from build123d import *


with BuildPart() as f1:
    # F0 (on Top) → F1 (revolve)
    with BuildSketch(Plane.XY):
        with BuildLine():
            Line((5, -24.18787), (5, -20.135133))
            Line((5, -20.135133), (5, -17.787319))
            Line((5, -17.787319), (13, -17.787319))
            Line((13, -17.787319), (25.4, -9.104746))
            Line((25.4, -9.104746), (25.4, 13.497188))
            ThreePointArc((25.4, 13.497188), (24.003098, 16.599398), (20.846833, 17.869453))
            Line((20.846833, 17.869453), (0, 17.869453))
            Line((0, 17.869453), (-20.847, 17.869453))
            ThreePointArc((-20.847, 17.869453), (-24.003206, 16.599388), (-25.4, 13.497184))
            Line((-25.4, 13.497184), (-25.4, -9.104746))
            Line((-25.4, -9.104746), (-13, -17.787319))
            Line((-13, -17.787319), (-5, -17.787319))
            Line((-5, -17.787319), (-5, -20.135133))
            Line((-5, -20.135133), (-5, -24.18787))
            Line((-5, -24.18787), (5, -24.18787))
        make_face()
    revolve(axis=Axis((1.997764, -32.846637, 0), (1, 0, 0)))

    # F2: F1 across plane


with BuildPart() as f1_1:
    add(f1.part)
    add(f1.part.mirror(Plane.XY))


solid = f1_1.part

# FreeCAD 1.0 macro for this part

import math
import FreeCAD as App
import Part
import Sketcher
Q = App.Units.Quantity

doc = App.newDocument("Part")
body = doc.addObject("PartDesign::Body", "Body")

sketch1 = body.newObject("Sketcher::SketchObject", "Sketch")
sketch1.AttachmentSupport = (doc.getObject("XY_Plane"), [""])
sketch1.MapMode = "FlatFace"
sketch1.addGeometry(Part.LineSegment(App.Vector(5, -24.18787, 0), App.Vector(5, -17.787319, 0)), False)
sketch1.addGeometry(Part.LineSegment(App.Vector(5, -17.787319, 0), App.Vector(13, -17.787319, 0)), False)
sketch1.addGeometry(Part.LineSegment(App.Vector(13, -17.787319, 0), App.Vector(25.4, -9.104746, 0)), False)
sketch1.addGeometry(Part.LineSegment(App.Vector(25.4, -9.104746, 0), App.Vector(25.4, 13.497188, 0)), False)
sketch1.addGeometry(Part.ArcOfCircle(Part.Circle(App.Vector(20.846832, 13.312543, 0), App.Vector(0, 0, 1), 4.55691), math.radians(2.32225), math.radians(89.999991)), False)
sketch1.addGeometry(Part.LineSegment(App.Vector(20.846833, 17.869453, 0), App.Vector(-20.847, 17.869453, 0)), False)
sketch1.addGeometry(Part.ArcOfCircle(Part.Circle(App.Vector(-20.847, 13.312718, 0), App.Vector(0, 0, 1), 4.556735), math.radians(89.999995), math.radians(177.679916)), False)
sketch1.addGeometry(Part.LineSegment(App.Vector(-25.4, 13.497184, 0), App.Vector(-25.4, -9.104746, 0)), False)
sketch1.addGeometry(Part.LineSegment(App.Vector(-25.4, -9.104746, 0), App.Vector(-13, -17.787319, 0)), False)
sketch1.addGeometry(Part.LineSegment(App.Vector(-13, -17.787319, 0), App.Vector(-5, -17.787319, 0)), False)
sketch1.addGeometry(Part.LineSegment(App.Vector(-5, -17.787319, 0), App.Vector(-5, -24.18787, 0)), False)
sketch1.addGeometry(Part.LineSegment(App.Vector(-5, -24.18787, 0), App.Vector(5, -24.18787, 0)), False)
sketch1.addGeometry(Part.LineSegment(App.Vector(-25.4, -32.846637, 0), App.Vector(25.4, -32.846637, 0)), True)
sketch1.addConstraint(Sketcher.Constraint("Coincident", 0, 2, 1, 1))
sketch1.addConstraint(Sketcher.Constraint("Coincident", 1, 2, 2, 1))
sketch1.addConstraint(Sketcher.Constraint("Coincident", 2, 2, 3, 1))
sketch1.addConstraint(Sketcher.Constraint("Coincident", 3, 2, 4, 1))
sketch1.addConstraint(Sketcher.Constraint("Tangent", 4, 2, 5, 1))
sketch1.addConstraint(Sketcher.Constraint("Tangent", 5, 2, 6, 1))
sketch1.addConstraint(Sketcher.Constraint("Coincident", 6, 2, 7, 1))
sketch1.addConstraint(Sketcher.Constraint("Coincident", 7, 2, 8, 1))
sketch1.addConstraint(Sketcher.Constraint("Coincident", 8, 2, 9, 1))
sketch1.addConstraint(Sketcher.Constraint("Coincident", 9, 2, 10, 1))
sketch1.addConstraint(Sketcher.Constraint("Coincident", 10, 2, 11, 1))
sketch1.addConstraint(Sketcher.Constraint("Coincident", 11, 2, 0, 1))
sketch1.addConstraint(Sketcher.Constraint("Vertical", 0))
sketch1.addConstraint(Sketcher.Constraint("Horizontal", 1))
sketch1.addConstraint(Sketcher.Constraint("Vertical", 3))
sketch1.addConstraint(Sketcher.Constraint("Horizontal", 5))
sketch1.addConstraint(Sketcher.Constraint("Vertical", 7))
sketch1.addConstraint(Sketcher.Constraint("Horizontal", 9))
sketch1.addConstraint(Sketcher.Constraint("Vertical", 10))
sketch1.addConstraint(Sketcher.Constraint("Horizontal", 11))
sketch1.addConstraint(Sketcher.Constraint("Horizontal", 12))
sketch1.addConstraint(Sketcher.Constraint("Symmetric", 3, 2, 6, 2, -2))
sketch1.addConstraint(Sketcher.Constraint("Symmetric", 1, 2, 8, 2, -2))
sketch1.addConstraint(Sketcher.Constraint("Horizontal", 2, 2, 7, 2))
sketch1.addConstraint(Sketcher.Constraint("Vertical", 7, 2, 12, 1))
sketch1.addConstraint(Sketcher.Constraint("Vertical", 3, 2, 12, 2))
sketch1.addConstraint(Sketcher.Constraint("Equal", 1, 9))
sketch1.addConstraint(Sketcher.Constraint("DistanceX", 1, 1, 1, 2, Q("8 mm")))
sketch1.addConstraint(Sketcher.Constraint("DistanceX", 11, 1, 11, 2, Q("10 mm")))
sketch1.addConstraint(Sketcher.Constraint("Angle", 2, Q("34.999999 deg")))
sketch1.addConstraint(Sketcher.Constraint("DistanceX", 12, 1, 12, 2, Q("50.8 mm")))
sketch1.addConstraint(Sketcher.Constraint("Radius", 4, Q("4.55691 mm")))
sketch1.addConstraint(Sketcher.Constraint("DistanceX", 6, 3, -1, 1, Q("20.847 mm")))
sketch1.addConstraint(Sketcher.Constraint("Radius", 6, Q("4.556735 mm")))
sketch1.addConstraint(Sketcher.Constraint("DistanceY", 0, 1, 0, 2, Q("6.400551 mm")))
sketch1.addConstraint(Sketcher.Constraint("DistanceY", 7, 2, 7, 1, Q("22.60193 mm")))
sketch1.addConstraint(Sketcher.Constraint("DistanceY", -1, 1, 6, 3, Q("13.312718 mm")))
sketch1.addConstraint(Sketcher.Constraint("DistanceY", 12, 1, 8, 2, Q("15.059318 mm")))
revolution = body.newObject("PartDesign::Revolution", "Revolution")
revolution.Profile = sketch1
revolution.ReferenceAxis = (sketch1, ["Axis0"])
revolution.Angle = 360
body2 = doc.addObject("PartDesign::Body", "Body001")
doc.recompute()

body2.BaseFeature = body
doc.recompute()

mirroring = doc.addObject("Part::Mirroring", "Mirroring")
mirroring.Source = body
mirroring.Base = App.Vector(0, 0, 0)
mirroring.Normal = App.Vector(0, 0, 1)
body3 = doc.addObject("PartDesign::Body", "Body002")
body3.BaseFeature = mirroring
boolean = body2.newObject("PartDesign::Boolean", "Boolean")
boolean.Type = "Fuse"
boolean.addObjects([body3])
doc.recompute()
mirroring.Visibility = False

doc.recompute()
